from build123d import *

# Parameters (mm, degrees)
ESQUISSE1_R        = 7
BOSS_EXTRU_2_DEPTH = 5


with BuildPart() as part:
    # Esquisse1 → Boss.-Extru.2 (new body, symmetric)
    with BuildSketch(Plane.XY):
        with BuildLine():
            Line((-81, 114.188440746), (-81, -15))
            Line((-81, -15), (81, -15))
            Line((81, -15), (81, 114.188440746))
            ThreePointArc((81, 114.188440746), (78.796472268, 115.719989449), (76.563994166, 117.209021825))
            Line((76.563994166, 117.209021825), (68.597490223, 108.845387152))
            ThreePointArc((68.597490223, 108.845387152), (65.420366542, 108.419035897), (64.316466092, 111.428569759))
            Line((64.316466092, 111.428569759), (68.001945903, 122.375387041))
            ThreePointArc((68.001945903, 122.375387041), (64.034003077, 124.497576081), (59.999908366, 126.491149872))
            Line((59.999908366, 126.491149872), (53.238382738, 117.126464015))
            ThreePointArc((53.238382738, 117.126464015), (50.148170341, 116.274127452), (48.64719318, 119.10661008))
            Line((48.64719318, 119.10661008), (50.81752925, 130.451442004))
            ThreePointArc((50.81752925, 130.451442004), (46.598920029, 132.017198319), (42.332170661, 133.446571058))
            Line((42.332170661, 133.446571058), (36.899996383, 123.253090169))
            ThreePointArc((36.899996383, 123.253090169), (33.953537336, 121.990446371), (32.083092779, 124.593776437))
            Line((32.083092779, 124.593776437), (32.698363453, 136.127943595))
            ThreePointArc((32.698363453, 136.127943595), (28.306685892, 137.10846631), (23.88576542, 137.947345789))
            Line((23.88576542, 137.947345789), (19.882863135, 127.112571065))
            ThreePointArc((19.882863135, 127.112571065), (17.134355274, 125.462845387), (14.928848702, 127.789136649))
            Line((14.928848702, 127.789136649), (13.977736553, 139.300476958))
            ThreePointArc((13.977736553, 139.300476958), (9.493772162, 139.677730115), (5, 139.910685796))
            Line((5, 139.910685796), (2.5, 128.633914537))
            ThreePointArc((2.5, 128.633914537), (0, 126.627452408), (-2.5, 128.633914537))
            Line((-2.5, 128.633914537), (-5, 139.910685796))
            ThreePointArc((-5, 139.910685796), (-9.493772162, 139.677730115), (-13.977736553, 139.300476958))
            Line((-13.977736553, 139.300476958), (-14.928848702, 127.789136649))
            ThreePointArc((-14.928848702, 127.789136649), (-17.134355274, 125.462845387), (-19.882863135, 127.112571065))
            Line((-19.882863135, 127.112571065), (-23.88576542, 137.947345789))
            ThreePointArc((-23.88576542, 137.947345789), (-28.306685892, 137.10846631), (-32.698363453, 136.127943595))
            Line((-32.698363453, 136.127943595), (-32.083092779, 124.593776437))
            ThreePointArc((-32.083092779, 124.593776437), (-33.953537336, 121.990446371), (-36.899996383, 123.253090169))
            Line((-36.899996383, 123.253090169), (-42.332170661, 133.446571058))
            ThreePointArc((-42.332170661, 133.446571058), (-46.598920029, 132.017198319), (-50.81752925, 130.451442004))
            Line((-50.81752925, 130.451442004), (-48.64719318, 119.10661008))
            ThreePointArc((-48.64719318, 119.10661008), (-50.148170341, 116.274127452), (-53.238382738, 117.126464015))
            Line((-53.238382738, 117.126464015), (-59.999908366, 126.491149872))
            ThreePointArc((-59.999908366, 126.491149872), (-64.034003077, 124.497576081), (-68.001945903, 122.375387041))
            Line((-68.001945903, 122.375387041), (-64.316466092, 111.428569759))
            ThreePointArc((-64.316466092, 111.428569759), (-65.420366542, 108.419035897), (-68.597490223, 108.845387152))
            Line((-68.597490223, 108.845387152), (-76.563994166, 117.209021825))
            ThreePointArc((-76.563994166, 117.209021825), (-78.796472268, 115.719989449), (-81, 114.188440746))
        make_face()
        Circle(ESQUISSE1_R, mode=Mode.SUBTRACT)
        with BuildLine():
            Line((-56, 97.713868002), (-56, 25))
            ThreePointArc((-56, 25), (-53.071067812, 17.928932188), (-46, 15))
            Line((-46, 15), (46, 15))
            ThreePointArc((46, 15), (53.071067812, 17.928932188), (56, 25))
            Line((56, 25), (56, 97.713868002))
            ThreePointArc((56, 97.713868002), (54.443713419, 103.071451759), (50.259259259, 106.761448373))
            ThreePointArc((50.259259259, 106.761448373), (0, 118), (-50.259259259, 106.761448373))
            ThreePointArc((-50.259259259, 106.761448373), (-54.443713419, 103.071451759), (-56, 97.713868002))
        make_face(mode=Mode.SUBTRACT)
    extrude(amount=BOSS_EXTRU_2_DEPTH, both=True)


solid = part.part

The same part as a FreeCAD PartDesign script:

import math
import FreeCAD as App
import Part
import Sketcher
from FreeCAD import Vector
Q = App.Units.Quantity

doc = App.newDocument("Part")
body = doc.addObject("PartDesign::Body", "Body")

# Sketch on XY plane
sketch1 = body.newObject("Sketcher::SketchObject", "Sketch")
sketch1.AttachmentSupport = (doc.getObject("XY_Plane"), [""])
sketch1.MapMode = "FlatFace"
sketch1.addGeometry([
    Part.LineSegment(Vector(-81, 114.188441, 0), Vector(-81, -15, 0)),  # 0
    Part.LineSegment(Vector(-81, -15, 0), Vector(81, -15, 0)),  # 1
    Part.LineSegment(Vector(81, -15, 0), Vector(81, 114.188441, 0)),  # 2
    Part.ArcOfCircle(Part.Circle(Vector(0.000001, 0.000001, 0), Vector(0, 0, 1), 139.999999), math.radians(54.649873), math.radians(56.846382)),  # 3
    Part.LineSegment(Vector(76.563994, 117.209022, 0), Vector(68.59749, 108.845387, 0)),  # 4
    Part.ArcOfCircle(Part.Circle(Vector(66.743317, 110.611519, 0), Vector(0, 0, 1), 2.560699), math.radians(161.393095), math.radians(316.393095)),  # 5
    Part.LineSegment(Vector(64.316466, 111.42857, 0), Vector(68.001946, 122.375387, 0)),  # 6
    Part.ArcOfCircle(Part.Circle(Vector(0.000001, 0.000001, 0), Vector(0, 0, 1), 139.999999), math.radians(60.939808), math.radians(64.623108)),  # 7
    Part.LineSegment(Vector(59.999908, 126.49115, 0), Vector(53.238383, 117.126464, 0)),  # 8
    Part.ArcOfCircle(Part.Circle(Vector(51.162282, 118.625458, 0), Vector(0, 0, 1), 2.560699), math.radians(169.169821), math.radians(324.169821)),  # 9
    Part.LineSegment(Vector(48.647193, 119.10661, 0), Vector(50.817529, 130.451442, 0)),  # 10
    Part.ArcOfCircle(Part.Circle(Vector(0, -0.000001, 0), Vector(0, 0, 1), 140.000001), math.radians(68.716534), math.radians(72.399834)),  # 11
    Part.LineSegment(Vector(42.332171, 133.446571, 0), Vector(36.899996, 123.25309, 0)),  # 12
    Part.ArcOfCircle(Part.Circle(Vector(34.640156, 124.457374, 0), Vector(0, 0, 1), 2.560699), math.radians(176.946547), math.radians(331.946547)),  # 13
    Part.LineSegment(Vector(32.083093, 124.593776, 0), Vector(32.698363, 136.127944, 0)),  # 14
    Part.ArcOfCircle(Part.Circle(Vector(0, 0.000001, 0), Vector(0, 0, 1), 139.999999), math.radians(76.49326), math.radians(80.176561)),  # 15
    Part.LineSegment(Vector(23.885765, 137.947346, 0), Vector(19.882863, 127.112571, 0)),  # 16
    Part.ArcOfCircle(Part.Circle(Vector(17.480851, 127.999993, 0), Vector(0, 0, 1), 2.560699), math.radians(-175.276726), math.radians(-20.276726)),  # 17
    Part.LineSegment(Vector(14.928849, 127.789137, 0), Vector(13.977737, 139.300477, 0)),  # 18
    Part.ArcOfCircle(Part.Circle(Vector(0, 0, 0), Vector(0, 0, 1), 140), math.radians(84.269987), math.radians(87.953287)),  # 19
    Part.LineSegment(Vector(5, 139.910686, 0), Vector(2.5, 128.633915, 0)),  # 20
    Part.ArcOfCircle(Part.Circle(Vector(0, 129.188151, 0), Vector(0, 0, 1), 2.560699), math.radians(-167.5), math.radians(-12.5)),  # 21
    Part.LineSegment(Vector(-2.5, 128.633915, 0), Vector(-5, 139.910686, 0)),  # 22
    Part.ArcOfCircle(Part.Circle(Vector(0, 0, 0), Vector(0, 0, 1), 140), math.radians(92.046713), math.radians(95.730013)),  # 23
    Part.LineSegment(Vector(-13.977737, 139.300477, 0), Vector(-14.928849, 127.789137, 0)),  # 24
    Part.ArcOfCircle(Part.Circle(Vector(-17.480851, 127.999993, 0), Vector(0, 0, 1), 2.560699), math.radians(-159.723274), math.radians(-4.723274)),  # 25
    Part.LineSegment(Vector(-19.882863, 127.112571, 0), Vector(-23.885765, 137.947346, 0)),  # 26
    Part.ArcOfCircle(Part.Circle(Vector(0, 0.000001, 0), Vector(0, 0, 1), 139.999999), math.radians(99.823439), math.radians(103.50674)),  # 27
    Part.LineSegment(Vector(-32.698363, 136.127944, 0), Vector(-32.083093, 124.593776, 0)),  # 28
    Part.ArcOfCircle(Part.Circle(Vector(-34.640156, 124.457374, 0), Vector(0, 0, 1), 2.560699), math.radians(-151.946547), math.radians(3.053453)),  # 29
    Part.LineSegment(Vector(-36.899996, 123.25309, 0), Vector(-42.332171, 133.446571, 0)),  # 30
    Part.ArcOfCircle(Part.Circle(Vector(0, -0.000001, 0), Vector(0, 0, 1), 140.000001), math.radians(107.600166), math.radians(111.283466)),  # 31
    Part.LineSegment(Vector(-50.817529, 130.451442, 0), Vector(-48.647193, 119.10661, 0)),  # 32
    Part.ArcOfCircle(Part.Circle(Vector(-51.162282, 118.625458, 0), Vector(0, 0, 1), 2.560699), math.radians(-144.169821), math.radians(10.830179)),  # 33
    Part.LineSegment(Vector(-53.238383, 117.126464, 0), Vector(-59.999908, 126.49115, 0)),  # 34
    Part.ArcOfCircle(Part.Circle(Vector(-0.000001, 0.000001, 0), Vector(0, 0, 1), 139.999999), math.radians(115.376892), math.radians(119.060192)),  # 35
    Part.LineSegment(Vector(-68.001946, 122.375387, 0), Vector(-64.316466, 111.42857, 0)),  # 36
    Part.ArcOfCircle(Part.Circle(Vector(-66.743317, 110.611519, 0), Vector(0, 0, 1), 2.560699), math.radians(-136.393095), math.radians(18.606905)),  # 37
    Part.LineSegment(Vector(-68.59749, 108.845387, 0), Vector(-76.563994, 117.209022, 0)),  # 38
    Part.ArcOfCircle(Part.Circle(Vector(-0.000001, 0.000001, 0), Vector(0, 0, 1), 139.999999), math.radians(123.153618), math.radians(125.350127)),  # 39
    Part.Circle(Vector(0, 0, 0), Vector(0, 0, 1), 7),  # 40
    Part.LineSegment(Vector(-56, 25, 0), Vector(-56, 97.713868, 0)),  # 41
    Part.ArcOfCircle(Part.Circle(Vector(-46, 97.713868, 0), Vector(0, 0, 1), 10), math.radians(115.209286), math.radians(180)),  # 42
    Part.ArcOfCircle(Part.Circle(Vector(0, 0, 0), Vector(0, 0, 1), 118), math.radians(64.790714), math.radians(115.209286)),  # 43
    Part.ArcOfCircle(Part.Circle(Vector(46, 97.713868, 0), Vector(0, 0, 1), 10), math.radians(0), math.radians(64.790714)),  # 44
    Part.LineSegment(Vector(56, 97.713868, 0), Vector(56, 25, 0)),  # 45
    Part.ArcOfCircle(Part.Circle(Vector(46, 25, 0), Vector(0, 0, 1), 10), math.radians(-90), math.radians(0)),  # 46
    Part.LineSegment(Vector(46, 15, 0), Vector(-46, 15, 0)),  # 47
    Part.ArcOfCircle(Part.Circle(Vector(-46, 25, 0), Vector(0, 0, 1), 10), math.radians(180), math.radians(270)),  # 48
], False)
sketch1.addConstraint([
    Sketcher.Constraint("Coincident", 0, 2, 1, 1),
    Sketcher.Constraint("Coincident", 1, 2, 2, 1),
    Sketcher.Constraint("Coincident", 2, 2, 3, 1),
    Sketcher.Constraint("Coincident", 3, 2, 4, 1),
    Sketcher.Constraint("Tangent", 4, 2, 5, 2),
    Sketcher.Constraint("Tangent", 5, 1, 6, 1),
    Sketcher.Constraint("Coincident", 6, 2, 7, 1),
    Sketcher.Constraint("Coincident", 7, 2, 8, 1),
    Sketcher.Constraint("Tangent", 8, 2, 9, 2),
    Sketcher.Constraint("Tangent", 9, 1, 10, 1),
    Sketcher.Constraint("Coincident", 10, 2, 11, 1),
    Sketcher.Constraint("Coincident", 11, 2, 12, 1),
    Sketcher.Constraint("Tangent", 12, 2, 13, 2),
    Sketcher.Constraint("Tangent", 13, 1, 14, 1),
    Sketcher.Constraint("Coincident", 14, 2, 15, 1),
    Sketcher.Constraint("Coincident", 15, 2, 16, 1),
    Sketcher.Constraint("Tangent", 16, 2, 17, 2),
    Sketcher.Constraint("Tangent", 17, 1, 18, 1),
    Sketcher.Constraint("Coincident", 18, 2, 19, 1),
    Sketcher.Constraint("Coincident", 19, 2, 20, 1),
    Sketcher.Constraint("Tangent", 20, 2, 21, 2),
    Sketcher.Constraint("Tangent", 21, 1, 22, 1),
    Sketcher.Constraint("Coincident", 22, 2, 23, 1),
    Sketcher.Constraint("Coincident", 23, 2, 24, 1),
    Sketcher.Constraint("Tangent", 24, 2, 25, 2),
    Sketcher.Constraint("Tangent", 25, 1, 26, 1),
    Sketcher.Constraint("Coincident", 26, 2, 27, 1),
    Sketcher.Constraint("Coincident", 27, 2, 28, 1),
    Sketcher.Constraint("Tangent", 28, 2, 29, 2),
    Sketcher.Constraint("Tangent", 29, 1, 30, 1),
    Sketcher.Constraint("Coincident", 30, 2, 31, 1),
    Sketcher.Constraint("Coincident", 31, 2, 32, 1),
    Sketcher.Constraint("Tangent", 32, 2, 33, 2),
    Sketcher.Constraint("Tangent", 33, 1, 34, 1),
    Sketcher.Constraint("Coincident", 34, 2, 35, 1),
    Sketcher.Constraint("Coincident", 35, 2, 36, 1),
    Sketcher.Constraint("Tangent", 36, 2, 37, 2),
    Sketcher.Constraint("Tangent", 37, 1, 38, 1),
    Sketcher.Constraint("Coincident", 38, 2, 39, 1),
    Sketcher.Constraint("Coincident", 39, 2, 0, 1),
    Sketcher.Constraint("Tangent", 41, 2, 42, 2),
    Sketcher.Constraint("Tangent", 42, 1, 43, 2),
    Sketcher.Constraint("Tangent", 43, 1, 44, 2),
    Sketcher.Constraint("Tangent", 44, 1, 45, 1),
    Sketcher.Constraint("Tangent", 45, 2, 46, 2),
    Sketcher.Constraint("Tangent", 46, 1, 47, 1),
    Sketcher.Constraint("Tangent", 47, 2, 48, 2),
    Sketcher.Constraint("Tangent", 48, 1, 41, 1),
    Sketcher.Constraint("Vertical", 0),
    Sketcher.Constraint("Horizontal", 1),
    Sketcher.Constraint("Vertical", 2),
    Sketcher.Constraint("Vertical", 41),
    Sketcher.Constraint("Vertical", 45),
    Sketcher.Constraint("Horizontal", 47),
    Sketcher.Constraint("Coincident", 3, 3, -1, 1),
    Sketcher.Constraint("Coincident", 7, 3, -1, 1),
    Sketcher.Constraint("Coincident", 11, 3, -1, 1),
    Sketcher.Constraint("Coincident", 15, 3, -1, 1),
    Sketcher.Constraint("Coincident", 19, 3, -1, 1),
    Sketcher.Constraint("Coincident", 23, 3, -1, 1),
    Sketcher.Constraint("Coincident", 27, 3, -1, 1),
    Sketcher.Constraint("Coincident", 31, 3, -1, 1),
    Sketcher.Constraint("Coincident", 35, 3, -1, 1),
    Sketcher.Constraint("Coincident", 39, 3, -1, 1),
    Sketcher.Constraint("Coincident", 40, 3, -1, 1),
    Sketcher.Constraint("Coincident", 43, 3, -1, 1),
    Sketcher.Constraint("Equal", 3, 7),
    Sketcher.Constraint("Equal", 5, 9),
    Sketcher.Constraint("Equal", 3, 11),
    Sketcher.Constraint("Equal", 9, 13),
    Sketcher.Constraint("Equal", 11, 15),
    Sketcher.Constraint("Equal", 13, 17),
    Sketcher.Constraint("Equal", 15, 19),
    Sketcher.Constraint("Equal", 17, 21),
    Sketcher.Constraint("Equal", 19, 23),
    Sketcher.Constraint("Equal", 21, 25),
    Sketcher.Constraint("Equal", 23, 27),
    Sketcher.Constraint("Equal", 25, 29),
    Sketcher.Constraint("Equal", 27, 31),
    Sketcher.Constraint("Equal", 29, 33),
    Sketcher.Constraint("Equal", 27, 35),
    Sketcher.Constraint("Equal", 33, 37),
    Sketcher.Constraint("Equal", 35, 39),
    Sketcher.Constraint("Equal", 42, 44),
    Sketcher.Constraint("Equal", 44, 46),
    Sketcher.Constraint("Equal", 46, 48),
    Sketcher.Constraint("Symmetric", 17, 3, 25, 3, -2),
    Sketcher.Constraint("Symmetric", 13, 3, 29, 3, -2),
    Sketcher.Constraint("Symmetric", 9, 3, 33, 3, -2),
    Sketcher.Constraint("Symmetric", 5, 3, 37, 3, -2),
    Sketcher.Constraint("Symmetric", 20, 2, 21, 1, -2),
    Sketcher.Constraint("Horizontal", 42, 3, 44, 3),
    Sketcher.Constraint("Horizontal", 18, 2, 23, 2),
    Sketcher.Constraint("Horizontal", 16, 2, 25, 1),
    Sketcher.Constraint("Horizontal", 14, 2, 27, 2),
    Sketcher.Constraint("Horizontal", 12, 2, 29, 1),
    Sketcher.Constraint("Horizontal", 10, 2, 31, 2),
    Sketcher.Constraint("Horizontal", 8, 2, 33, 1),
    Sketcher.Constraint("Horizontal", 6, 2, 35, 2),
    Sketcher.Constraint("Horizontal", 4, 2, 37, 1),
    Sketcher.Constraint("Horizontal", 2, 2, 39, 2),
    Sketcher.Constraint("Equal", 4, 6),
    Sketcher.Constraint("Equal", 6, 8),
    Sketcher.Constraint("Equal", 8, 10),
    Sketcher.Constraint("Equal", 10, 12),
    Sketcher.Constraint("Equal", 12, 14),
    Sketcher.Constraint("Equal", 14, 16),
    Sketcher.Constraint("Equal", 16, 18),
    Sketcher.Constraint("Equal", 18, 20),
    Sketcher.Constraint("Diameter", 40, Q("14 mm")),
    Sketcher.Constraint("Radius", 3, Q("139.999999 mm")),
    Sketcher.Constraint("Radius", 42, Q("10 mm")),
    Sketcher.Constraint("Radius", 43, Q("118 mm")),
    Sketcher.Constraint("DistanceX", 1, 1, 1, 2, Q("162 mm")),
    Sketcher.Constraint("DistanceX", 47, 2, 47, 1, Q("92 mm")),
    Sketcher.Constraint("DistanceY", -1, 1, 46, 3, Q("25 mm")),
    Sketcher.Constraint("DistanceY", 0, 2, -1, 1, Q("15 mm")),
    Sketcher.Constraint("DistanceX", -1, 1, 19, 2, Q("5 mm")),
    Sketcher.Constraint("Angle", 20, Q("-102.5 deg")),
    Sketcher.Constraint("DistanceX", -1, 1, 20, 2, Q("2.5 mm")),
    Sketcher.Constraint("DistanceY", -1, 1, 5, 3, Q("110.611519 mm")),
    Sketcher.Constraint("DistanceX", -1, 1, 9, 3, Q("51.162282 mm")),
    Sketcher.Constraint("DistanceY", -1, 1, 9, 3, Q("118.625458 mm")),
    Sketcher.Constraint("DistanceX", -1, 1, 17, 3, Q("17.480851 mm")),
    Sketcher.Constraint("DistanceY", -1, 1, 3, 2, Q("117.209022 mm")),
    Sketcher.Constraint("DistanceX", -1, 1, 11, 2, Q("42.332171 mm")),
    Sketcher.Constraint("DistanceY", -1, 1, 12, 2, Q("123.25309 mm")),
    Sketcher.Constraint("DistanceY", -1, 1, 16, 2, Q("127.112571 mm")),
])
pad1 = body.newObject("PartDesign::Pad", "Pad")
pad1.Profile = sketch1
pad1.Length = 10
pad1.Midplane = True

doc.recompute()
